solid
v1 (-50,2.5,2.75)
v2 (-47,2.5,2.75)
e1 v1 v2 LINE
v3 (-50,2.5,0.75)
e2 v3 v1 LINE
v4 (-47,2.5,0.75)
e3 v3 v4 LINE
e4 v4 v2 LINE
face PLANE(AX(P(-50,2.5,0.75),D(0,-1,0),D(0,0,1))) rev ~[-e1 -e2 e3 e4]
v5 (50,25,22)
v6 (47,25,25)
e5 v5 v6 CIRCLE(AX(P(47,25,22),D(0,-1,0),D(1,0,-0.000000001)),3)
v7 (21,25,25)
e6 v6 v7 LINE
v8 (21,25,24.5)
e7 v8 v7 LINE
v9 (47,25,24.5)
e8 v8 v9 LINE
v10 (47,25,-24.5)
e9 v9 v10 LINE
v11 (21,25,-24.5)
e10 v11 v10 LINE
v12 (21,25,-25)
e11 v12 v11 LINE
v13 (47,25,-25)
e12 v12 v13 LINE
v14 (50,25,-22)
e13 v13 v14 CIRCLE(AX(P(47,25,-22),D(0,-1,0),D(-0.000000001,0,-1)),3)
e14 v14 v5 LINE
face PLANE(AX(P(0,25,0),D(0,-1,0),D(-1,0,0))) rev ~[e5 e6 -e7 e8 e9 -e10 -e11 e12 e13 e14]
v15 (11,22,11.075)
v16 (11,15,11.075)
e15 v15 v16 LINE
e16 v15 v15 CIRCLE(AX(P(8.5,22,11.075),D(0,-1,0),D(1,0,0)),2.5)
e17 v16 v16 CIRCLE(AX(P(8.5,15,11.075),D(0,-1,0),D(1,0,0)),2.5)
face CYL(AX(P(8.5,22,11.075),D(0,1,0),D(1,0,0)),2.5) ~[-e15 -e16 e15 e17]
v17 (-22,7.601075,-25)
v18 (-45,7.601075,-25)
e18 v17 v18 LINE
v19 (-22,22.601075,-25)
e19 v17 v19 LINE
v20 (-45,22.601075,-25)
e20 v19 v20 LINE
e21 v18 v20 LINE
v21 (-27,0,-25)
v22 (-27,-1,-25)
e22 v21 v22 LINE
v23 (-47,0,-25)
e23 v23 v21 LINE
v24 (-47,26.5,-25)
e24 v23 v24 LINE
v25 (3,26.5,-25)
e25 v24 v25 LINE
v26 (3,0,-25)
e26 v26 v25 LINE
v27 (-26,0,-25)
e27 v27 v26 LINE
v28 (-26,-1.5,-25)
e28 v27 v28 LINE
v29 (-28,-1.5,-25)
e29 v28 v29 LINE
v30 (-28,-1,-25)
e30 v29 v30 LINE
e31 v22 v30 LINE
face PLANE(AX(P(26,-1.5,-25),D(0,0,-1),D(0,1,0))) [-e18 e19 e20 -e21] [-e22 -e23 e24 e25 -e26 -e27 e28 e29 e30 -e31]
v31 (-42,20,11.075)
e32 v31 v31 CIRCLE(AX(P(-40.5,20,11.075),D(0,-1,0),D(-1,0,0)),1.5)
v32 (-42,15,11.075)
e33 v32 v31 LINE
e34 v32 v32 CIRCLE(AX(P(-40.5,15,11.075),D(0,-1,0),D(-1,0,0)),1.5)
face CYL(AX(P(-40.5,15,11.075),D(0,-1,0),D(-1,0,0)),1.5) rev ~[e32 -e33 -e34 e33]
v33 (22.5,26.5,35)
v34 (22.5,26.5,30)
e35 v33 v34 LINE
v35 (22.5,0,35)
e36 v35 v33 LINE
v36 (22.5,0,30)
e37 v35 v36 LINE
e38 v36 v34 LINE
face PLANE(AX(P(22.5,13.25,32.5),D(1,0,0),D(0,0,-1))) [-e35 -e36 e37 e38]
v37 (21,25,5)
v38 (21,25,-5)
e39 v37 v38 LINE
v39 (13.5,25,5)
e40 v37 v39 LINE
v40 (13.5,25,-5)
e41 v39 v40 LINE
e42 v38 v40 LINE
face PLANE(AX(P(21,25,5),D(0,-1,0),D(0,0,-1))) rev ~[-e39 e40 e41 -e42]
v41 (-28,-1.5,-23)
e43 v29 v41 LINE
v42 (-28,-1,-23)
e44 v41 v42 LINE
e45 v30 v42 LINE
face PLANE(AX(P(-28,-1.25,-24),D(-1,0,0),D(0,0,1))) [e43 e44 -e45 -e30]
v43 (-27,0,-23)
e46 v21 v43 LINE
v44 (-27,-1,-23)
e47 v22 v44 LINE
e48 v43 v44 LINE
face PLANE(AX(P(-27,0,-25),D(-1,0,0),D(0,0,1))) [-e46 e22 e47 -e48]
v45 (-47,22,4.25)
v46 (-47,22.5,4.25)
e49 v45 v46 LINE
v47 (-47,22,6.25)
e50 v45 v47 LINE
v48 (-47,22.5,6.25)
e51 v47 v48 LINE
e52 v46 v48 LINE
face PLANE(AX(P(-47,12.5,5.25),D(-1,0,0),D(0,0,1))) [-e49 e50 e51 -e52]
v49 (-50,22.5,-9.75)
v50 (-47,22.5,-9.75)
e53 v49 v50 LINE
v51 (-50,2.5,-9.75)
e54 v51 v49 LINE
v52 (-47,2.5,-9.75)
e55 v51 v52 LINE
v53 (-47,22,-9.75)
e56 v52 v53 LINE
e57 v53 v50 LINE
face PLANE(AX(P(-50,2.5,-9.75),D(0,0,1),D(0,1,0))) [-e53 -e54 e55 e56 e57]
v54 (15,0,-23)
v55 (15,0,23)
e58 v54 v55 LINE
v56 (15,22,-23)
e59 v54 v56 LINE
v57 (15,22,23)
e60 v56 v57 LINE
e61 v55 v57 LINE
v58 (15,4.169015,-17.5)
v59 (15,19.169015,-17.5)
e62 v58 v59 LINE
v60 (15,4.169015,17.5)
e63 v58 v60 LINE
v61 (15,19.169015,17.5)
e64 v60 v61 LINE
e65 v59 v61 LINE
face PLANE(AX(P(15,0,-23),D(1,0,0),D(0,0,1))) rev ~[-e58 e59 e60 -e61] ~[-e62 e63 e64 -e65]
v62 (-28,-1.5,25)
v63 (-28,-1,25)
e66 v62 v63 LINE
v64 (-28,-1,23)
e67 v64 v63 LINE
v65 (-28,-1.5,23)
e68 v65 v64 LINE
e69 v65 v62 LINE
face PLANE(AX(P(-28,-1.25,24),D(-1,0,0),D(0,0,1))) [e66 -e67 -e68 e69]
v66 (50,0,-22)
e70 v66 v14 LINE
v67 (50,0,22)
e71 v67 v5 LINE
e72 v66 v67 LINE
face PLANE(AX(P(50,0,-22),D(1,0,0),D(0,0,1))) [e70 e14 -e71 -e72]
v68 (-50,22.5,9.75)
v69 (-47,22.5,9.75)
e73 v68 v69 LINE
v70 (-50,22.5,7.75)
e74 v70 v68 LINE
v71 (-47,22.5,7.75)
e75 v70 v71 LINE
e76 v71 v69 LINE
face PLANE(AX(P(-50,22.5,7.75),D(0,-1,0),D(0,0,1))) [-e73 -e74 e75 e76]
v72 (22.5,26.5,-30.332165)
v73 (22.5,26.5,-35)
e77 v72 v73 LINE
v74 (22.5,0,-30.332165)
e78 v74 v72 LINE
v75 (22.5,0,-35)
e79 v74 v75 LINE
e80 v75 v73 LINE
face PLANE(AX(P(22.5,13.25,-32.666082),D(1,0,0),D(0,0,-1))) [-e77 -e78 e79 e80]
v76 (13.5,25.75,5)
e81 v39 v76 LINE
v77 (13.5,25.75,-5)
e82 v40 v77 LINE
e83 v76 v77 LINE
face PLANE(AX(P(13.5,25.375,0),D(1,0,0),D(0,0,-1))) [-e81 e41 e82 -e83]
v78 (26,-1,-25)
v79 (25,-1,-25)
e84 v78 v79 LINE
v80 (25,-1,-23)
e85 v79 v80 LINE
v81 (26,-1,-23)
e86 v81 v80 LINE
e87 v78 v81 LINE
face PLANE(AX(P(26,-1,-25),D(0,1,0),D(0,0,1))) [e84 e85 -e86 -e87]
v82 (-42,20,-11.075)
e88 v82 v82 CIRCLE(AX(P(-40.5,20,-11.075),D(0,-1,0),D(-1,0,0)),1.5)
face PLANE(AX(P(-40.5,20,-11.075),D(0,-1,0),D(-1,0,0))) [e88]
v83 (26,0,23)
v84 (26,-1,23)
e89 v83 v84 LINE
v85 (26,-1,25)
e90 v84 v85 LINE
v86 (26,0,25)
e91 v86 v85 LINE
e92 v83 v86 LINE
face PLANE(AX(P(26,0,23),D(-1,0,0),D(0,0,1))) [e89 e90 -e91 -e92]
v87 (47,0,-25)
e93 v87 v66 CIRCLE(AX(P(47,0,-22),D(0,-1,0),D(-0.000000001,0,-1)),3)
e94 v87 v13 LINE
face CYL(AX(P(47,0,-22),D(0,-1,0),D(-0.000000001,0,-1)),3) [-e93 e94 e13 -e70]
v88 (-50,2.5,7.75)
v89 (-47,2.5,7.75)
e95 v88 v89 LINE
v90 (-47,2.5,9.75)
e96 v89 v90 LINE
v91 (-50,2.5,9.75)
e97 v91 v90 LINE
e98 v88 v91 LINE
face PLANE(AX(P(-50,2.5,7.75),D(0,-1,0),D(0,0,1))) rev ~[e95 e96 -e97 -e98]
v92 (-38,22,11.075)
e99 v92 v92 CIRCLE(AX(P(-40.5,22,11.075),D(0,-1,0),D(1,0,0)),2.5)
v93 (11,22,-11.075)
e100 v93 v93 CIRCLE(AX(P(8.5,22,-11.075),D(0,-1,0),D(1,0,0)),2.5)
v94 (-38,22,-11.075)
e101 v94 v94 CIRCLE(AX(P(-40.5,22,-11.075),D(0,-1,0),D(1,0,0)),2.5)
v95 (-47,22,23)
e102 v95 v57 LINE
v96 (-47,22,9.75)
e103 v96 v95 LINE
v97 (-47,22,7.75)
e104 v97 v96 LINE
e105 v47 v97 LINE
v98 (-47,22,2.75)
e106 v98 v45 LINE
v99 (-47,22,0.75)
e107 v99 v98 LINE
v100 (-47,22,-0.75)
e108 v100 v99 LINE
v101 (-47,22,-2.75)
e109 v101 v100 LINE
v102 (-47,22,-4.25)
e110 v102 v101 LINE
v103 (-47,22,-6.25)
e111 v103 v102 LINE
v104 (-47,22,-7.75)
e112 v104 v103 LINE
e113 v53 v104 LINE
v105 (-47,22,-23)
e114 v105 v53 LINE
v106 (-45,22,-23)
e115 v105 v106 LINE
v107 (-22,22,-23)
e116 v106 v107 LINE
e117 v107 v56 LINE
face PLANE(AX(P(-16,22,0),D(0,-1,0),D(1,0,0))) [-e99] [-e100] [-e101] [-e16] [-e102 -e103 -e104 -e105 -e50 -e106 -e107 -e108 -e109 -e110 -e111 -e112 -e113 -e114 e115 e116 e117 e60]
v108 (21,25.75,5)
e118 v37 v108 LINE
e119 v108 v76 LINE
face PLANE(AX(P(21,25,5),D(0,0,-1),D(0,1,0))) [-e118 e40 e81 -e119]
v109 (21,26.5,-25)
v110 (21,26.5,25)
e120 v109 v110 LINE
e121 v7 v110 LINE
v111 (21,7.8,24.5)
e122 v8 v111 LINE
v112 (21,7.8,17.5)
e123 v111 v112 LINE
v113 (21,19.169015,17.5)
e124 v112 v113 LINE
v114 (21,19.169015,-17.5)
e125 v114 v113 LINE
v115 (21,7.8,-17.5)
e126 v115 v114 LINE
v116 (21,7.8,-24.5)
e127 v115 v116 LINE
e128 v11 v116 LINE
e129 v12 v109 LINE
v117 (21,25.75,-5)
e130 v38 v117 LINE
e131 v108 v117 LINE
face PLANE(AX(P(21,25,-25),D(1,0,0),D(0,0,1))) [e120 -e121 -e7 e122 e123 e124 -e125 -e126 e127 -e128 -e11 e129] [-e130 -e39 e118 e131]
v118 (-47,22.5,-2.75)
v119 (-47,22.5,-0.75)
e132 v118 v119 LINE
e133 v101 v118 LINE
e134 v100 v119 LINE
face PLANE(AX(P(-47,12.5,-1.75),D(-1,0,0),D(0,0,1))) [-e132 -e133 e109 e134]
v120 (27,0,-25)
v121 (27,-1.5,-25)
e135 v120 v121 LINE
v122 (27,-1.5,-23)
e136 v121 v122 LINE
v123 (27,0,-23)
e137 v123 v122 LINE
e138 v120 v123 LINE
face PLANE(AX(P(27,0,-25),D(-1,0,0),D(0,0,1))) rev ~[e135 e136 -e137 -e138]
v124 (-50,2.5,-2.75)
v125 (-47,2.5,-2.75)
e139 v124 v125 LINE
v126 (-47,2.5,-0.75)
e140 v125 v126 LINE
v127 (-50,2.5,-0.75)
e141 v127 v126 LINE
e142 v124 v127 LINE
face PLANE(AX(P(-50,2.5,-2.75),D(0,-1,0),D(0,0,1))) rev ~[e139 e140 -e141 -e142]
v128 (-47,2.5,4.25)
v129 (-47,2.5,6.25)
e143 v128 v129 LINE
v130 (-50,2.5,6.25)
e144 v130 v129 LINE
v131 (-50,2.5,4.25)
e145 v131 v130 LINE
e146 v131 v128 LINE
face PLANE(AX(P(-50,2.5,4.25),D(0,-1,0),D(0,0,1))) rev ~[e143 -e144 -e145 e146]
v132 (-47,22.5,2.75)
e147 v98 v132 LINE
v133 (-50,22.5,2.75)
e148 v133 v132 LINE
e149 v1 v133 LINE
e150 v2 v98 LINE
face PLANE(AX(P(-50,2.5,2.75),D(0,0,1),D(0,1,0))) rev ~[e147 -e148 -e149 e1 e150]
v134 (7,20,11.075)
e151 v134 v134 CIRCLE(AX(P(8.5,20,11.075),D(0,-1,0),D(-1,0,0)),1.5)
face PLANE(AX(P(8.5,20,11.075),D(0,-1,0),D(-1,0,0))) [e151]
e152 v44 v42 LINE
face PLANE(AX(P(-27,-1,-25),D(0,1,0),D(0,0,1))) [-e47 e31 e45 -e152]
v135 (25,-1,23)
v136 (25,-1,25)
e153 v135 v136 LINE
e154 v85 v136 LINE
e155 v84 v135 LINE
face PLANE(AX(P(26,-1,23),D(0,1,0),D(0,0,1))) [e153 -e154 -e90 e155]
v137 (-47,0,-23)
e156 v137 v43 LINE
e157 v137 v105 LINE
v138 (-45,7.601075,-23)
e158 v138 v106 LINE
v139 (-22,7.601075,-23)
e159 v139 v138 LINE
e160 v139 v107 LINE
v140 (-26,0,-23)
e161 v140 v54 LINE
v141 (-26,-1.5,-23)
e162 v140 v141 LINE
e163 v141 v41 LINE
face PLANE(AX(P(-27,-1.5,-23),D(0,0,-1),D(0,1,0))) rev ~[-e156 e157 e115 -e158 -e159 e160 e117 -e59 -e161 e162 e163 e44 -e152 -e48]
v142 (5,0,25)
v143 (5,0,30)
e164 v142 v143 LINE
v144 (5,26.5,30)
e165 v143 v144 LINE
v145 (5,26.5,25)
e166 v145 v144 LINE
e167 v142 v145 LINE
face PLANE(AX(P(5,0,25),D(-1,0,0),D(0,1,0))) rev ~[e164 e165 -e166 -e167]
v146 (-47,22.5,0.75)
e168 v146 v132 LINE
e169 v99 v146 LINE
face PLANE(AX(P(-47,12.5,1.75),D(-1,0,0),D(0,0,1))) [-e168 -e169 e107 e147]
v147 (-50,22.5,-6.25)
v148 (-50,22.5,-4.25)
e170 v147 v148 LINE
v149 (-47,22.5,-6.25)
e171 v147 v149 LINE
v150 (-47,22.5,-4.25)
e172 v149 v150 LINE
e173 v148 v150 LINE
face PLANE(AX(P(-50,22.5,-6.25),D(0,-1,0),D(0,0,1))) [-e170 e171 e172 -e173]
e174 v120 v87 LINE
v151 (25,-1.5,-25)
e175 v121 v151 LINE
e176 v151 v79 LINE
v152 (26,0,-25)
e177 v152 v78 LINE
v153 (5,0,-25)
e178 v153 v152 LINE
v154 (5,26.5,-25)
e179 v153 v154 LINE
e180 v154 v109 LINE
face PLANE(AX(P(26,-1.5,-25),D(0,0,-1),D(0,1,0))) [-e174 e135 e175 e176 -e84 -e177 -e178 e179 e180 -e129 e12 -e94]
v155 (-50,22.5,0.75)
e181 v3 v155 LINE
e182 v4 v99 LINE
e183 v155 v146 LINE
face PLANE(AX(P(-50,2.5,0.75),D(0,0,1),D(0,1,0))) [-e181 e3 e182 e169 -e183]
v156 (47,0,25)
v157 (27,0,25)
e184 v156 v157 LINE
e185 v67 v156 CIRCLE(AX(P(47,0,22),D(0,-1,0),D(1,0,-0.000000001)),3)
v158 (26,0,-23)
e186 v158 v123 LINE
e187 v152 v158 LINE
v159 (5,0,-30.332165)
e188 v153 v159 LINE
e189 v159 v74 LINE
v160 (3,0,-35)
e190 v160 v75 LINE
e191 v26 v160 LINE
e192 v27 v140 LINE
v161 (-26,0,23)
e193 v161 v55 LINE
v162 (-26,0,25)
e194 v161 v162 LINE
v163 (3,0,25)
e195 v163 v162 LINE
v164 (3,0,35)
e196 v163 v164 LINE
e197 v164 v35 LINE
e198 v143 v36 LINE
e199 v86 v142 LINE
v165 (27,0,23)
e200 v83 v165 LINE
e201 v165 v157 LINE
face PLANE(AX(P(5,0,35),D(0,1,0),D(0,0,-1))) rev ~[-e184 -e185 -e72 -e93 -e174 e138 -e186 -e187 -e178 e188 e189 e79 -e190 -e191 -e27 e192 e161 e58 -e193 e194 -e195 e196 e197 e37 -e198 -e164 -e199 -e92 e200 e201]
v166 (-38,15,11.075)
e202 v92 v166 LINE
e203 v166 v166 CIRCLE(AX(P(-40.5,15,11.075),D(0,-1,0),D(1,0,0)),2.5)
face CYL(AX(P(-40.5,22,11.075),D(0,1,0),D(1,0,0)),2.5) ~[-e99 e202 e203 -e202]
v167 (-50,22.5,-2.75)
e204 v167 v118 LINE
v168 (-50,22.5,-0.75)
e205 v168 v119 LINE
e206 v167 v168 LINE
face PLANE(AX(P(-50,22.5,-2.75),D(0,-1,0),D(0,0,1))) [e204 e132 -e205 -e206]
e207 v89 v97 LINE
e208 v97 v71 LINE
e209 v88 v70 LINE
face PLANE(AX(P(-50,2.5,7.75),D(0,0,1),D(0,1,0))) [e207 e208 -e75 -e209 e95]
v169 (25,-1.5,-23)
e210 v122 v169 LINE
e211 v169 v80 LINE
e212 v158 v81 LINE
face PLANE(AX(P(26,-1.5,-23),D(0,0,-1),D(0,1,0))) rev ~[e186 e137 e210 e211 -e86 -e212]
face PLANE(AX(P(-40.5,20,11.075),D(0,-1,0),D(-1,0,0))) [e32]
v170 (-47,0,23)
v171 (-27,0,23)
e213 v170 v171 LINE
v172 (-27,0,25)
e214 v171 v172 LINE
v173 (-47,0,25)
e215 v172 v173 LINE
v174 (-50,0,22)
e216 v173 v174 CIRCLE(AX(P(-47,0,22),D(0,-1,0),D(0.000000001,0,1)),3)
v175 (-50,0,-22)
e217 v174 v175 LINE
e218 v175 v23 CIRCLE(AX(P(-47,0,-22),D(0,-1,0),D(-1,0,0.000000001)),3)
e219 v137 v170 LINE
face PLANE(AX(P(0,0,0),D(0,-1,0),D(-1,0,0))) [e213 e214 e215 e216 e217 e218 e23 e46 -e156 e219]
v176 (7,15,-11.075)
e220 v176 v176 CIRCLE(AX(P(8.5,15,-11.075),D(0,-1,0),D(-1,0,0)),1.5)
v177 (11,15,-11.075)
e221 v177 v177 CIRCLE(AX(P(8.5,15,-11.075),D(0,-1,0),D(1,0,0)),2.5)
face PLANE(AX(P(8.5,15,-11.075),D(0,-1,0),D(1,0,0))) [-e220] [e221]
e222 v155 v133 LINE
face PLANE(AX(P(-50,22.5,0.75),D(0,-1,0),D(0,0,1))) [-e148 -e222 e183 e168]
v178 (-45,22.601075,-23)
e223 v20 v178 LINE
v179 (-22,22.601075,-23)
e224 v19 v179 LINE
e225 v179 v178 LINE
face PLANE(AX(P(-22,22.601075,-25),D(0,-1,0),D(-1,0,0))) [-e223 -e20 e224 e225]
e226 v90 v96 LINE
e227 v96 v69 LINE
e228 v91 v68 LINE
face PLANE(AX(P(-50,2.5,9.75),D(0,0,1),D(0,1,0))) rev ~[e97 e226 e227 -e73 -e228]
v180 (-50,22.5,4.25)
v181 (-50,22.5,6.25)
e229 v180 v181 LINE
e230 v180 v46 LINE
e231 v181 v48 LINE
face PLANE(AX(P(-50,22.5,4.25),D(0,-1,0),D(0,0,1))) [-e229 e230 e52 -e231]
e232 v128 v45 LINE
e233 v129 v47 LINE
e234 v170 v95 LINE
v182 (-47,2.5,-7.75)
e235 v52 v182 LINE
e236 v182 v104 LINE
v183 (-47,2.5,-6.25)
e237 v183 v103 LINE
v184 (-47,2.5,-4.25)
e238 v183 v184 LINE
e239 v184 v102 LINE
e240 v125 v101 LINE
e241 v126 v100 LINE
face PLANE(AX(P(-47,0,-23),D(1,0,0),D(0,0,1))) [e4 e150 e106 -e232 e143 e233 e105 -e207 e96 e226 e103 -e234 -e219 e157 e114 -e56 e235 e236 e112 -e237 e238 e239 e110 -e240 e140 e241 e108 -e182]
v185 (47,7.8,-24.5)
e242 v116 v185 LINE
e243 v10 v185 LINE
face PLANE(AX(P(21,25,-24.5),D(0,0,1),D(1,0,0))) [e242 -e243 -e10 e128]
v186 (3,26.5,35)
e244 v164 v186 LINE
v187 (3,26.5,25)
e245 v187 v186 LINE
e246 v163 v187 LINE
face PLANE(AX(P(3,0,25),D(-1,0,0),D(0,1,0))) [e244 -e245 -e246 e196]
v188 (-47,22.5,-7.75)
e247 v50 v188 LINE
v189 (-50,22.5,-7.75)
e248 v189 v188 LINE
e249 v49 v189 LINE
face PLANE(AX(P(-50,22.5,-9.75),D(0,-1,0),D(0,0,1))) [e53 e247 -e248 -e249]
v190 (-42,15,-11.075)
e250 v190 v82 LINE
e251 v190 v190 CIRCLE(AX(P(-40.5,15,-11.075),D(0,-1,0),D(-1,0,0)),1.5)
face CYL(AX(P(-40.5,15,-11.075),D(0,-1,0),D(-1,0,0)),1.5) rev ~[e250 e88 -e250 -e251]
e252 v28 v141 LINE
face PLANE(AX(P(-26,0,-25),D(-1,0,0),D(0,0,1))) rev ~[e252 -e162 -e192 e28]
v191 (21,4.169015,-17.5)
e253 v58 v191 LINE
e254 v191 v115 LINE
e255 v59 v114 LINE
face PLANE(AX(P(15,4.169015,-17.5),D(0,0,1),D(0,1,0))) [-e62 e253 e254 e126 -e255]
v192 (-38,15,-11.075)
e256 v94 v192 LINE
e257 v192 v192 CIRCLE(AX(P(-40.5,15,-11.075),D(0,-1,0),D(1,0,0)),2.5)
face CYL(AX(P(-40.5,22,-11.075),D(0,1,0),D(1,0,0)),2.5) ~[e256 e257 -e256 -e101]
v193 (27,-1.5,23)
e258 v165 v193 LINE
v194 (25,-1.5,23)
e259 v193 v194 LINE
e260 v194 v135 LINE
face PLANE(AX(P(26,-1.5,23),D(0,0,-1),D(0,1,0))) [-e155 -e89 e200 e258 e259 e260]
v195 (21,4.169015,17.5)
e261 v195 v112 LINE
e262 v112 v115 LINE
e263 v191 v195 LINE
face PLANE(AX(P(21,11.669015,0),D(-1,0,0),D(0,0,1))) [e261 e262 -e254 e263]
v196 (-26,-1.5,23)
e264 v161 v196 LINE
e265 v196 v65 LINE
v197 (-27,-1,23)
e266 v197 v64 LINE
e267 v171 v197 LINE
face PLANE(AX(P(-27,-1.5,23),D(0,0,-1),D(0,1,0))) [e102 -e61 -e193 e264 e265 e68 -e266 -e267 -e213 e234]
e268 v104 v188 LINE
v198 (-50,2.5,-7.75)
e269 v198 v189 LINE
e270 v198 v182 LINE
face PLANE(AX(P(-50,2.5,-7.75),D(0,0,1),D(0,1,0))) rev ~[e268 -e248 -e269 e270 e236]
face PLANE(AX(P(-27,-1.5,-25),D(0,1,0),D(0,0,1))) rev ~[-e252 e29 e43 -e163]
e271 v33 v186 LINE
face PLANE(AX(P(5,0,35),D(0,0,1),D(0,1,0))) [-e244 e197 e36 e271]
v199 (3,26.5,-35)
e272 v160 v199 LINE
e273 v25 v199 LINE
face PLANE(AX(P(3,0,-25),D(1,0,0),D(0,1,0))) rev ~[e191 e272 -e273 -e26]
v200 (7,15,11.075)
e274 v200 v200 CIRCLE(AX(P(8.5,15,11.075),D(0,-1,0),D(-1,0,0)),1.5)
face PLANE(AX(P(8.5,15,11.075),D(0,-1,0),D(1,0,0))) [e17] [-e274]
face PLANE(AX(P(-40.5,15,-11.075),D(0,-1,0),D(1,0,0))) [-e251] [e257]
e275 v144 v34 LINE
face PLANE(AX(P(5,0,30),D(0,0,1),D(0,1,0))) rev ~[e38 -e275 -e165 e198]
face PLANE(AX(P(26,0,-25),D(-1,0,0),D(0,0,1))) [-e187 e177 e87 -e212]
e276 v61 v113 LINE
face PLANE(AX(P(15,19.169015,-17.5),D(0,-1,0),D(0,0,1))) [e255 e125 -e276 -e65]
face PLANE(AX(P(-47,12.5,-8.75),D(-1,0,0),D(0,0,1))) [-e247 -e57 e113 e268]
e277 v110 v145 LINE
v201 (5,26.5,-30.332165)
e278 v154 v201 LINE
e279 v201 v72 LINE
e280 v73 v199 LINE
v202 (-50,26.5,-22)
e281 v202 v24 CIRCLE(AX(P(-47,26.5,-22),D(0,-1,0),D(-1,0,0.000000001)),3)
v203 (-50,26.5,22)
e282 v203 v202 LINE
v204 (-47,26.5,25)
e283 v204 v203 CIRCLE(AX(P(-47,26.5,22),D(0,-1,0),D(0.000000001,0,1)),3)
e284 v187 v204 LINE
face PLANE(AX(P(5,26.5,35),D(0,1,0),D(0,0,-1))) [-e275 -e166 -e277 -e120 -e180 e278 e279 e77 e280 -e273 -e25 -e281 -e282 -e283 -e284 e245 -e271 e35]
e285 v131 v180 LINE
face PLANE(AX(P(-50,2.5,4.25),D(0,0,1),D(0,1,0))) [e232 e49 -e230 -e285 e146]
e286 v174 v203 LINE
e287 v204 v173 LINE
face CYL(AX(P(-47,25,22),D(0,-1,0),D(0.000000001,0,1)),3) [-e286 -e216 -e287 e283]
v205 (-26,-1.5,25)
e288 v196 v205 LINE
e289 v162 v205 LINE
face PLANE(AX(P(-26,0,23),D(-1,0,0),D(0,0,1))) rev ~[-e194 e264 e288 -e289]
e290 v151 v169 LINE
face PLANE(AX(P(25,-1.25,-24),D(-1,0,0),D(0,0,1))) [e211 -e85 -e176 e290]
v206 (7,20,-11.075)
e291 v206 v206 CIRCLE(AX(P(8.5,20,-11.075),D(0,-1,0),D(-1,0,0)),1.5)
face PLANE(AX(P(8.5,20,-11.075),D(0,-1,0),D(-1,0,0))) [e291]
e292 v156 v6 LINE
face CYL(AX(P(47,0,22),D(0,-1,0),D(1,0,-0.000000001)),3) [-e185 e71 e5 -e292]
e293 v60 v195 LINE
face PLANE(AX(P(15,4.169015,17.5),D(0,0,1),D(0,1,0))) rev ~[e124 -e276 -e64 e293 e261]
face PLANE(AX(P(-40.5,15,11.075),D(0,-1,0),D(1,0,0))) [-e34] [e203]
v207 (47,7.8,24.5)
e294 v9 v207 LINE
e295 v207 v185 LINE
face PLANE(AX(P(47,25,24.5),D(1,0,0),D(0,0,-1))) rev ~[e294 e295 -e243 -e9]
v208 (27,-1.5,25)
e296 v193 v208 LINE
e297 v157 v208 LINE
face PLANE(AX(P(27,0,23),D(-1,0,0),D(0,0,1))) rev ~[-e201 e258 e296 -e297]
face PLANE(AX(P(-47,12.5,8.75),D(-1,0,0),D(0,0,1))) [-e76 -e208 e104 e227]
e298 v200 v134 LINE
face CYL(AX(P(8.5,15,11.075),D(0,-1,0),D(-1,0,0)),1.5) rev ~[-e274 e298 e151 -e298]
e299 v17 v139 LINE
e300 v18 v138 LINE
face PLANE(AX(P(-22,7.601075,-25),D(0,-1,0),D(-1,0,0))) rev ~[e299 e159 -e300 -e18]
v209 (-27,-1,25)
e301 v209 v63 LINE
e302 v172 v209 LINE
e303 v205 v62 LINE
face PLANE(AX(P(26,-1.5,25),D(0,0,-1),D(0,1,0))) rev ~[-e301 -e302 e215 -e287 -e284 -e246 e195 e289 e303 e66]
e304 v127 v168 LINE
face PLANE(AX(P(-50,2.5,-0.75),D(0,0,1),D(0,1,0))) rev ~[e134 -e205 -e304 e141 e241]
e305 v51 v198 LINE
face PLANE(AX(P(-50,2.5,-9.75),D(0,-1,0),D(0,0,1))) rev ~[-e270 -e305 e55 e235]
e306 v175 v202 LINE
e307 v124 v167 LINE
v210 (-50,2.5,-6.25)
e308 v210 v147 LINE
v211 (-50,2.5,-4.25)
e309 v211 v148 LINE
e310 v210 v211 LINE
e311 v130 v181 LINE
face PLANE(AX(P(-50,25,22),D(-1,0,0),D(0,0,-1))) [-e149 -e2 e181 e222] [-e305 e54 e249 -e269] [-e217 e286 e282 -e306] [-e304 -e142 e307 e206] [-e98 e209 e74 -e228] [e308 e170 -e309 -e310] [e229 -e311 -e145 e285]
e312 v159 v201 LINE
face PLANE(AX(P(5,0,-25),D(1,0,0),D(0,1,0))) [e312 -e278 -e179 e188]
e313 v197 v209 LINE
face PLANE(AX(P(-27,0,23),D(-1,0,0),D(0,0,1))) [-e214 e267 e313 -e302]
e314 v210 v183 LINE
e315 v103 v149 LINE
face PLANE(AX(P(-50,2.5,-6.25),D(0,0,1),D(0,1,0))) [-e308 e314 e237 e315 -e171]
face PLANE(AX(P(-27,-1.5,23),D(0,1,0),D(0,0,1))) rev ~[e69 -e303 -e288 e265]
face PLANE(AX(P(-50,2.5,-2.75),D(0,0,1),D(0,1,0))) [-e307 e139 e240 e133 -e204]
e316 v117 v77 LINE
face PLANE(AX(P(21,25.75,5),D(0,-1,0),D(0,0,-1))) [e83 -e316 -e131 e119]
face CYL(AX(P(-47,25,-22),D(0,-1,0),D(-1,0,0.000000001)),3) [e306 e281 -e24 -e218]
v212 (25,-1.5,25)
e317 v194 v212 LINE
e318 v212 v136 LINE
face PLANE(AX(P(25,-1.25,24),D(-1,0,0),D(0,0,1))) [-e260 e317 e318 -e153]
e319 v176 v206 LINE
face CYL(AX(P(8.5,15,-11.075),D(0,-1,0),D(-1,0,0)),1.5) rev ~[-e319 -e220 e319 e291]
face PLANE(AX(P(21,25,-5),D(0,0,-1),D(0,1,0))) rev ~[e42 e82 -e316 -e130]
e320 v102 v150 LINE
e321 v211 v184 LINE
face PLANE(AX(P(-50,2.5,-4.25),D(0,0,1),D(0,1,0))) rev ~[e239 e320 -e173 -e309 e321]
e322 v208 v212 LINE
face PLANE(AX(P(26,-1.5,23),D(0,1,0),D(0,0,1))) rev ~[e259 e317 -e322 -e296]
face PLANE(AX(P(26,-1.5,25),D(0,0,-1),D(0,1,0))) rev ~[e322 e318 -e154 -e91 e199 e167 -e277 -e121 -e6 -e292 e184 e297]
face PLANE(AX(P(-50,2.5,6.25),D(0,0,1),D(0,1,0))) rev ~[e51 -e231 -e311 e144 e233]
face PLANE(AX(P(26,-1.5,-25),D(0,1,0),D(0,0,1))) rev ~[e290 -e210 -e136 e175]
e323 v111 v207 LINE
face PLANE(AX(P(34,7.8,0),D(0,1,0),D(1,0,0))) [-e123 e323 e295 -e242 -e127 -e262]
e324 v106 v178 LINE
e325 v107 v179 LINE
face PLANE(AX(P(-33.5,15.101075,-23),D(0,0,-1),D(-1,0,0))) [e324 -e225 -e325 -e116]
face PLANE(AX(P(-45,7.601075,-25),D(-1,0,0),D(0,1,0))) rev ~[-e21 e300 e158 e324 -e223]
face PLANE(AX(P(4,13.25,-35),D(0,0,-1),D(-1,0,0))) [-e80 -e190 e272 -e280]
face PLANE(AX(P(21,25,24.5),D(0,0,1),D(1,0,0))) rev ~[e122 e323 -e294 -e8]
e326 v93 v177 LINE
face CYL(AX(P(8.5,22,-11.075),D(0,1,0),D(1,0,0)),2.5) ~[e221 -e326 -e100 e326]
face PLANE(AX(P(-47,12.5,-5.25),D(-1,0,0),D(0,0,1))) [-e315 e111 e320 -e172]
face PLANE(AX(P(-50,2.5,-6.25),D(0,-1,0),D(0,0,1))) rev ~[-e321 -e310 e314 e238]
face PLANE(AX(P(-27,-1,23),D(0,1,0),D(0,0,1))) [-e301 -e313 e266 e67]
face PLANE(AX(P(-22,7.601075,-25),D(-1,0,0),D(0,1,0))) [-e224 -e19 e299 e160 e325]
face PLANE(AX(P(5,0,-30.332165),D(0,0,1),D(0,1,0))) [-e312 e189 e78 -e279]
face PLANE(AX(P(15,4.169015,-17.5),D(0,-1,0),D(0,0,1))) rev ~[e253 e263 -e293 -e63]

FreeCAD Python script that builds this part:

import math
import FreeCAD as App
import Part
import Sketcher

V = App.Vector
Q = App.Units.Quantity


def add_polygon(sketch, points):
    """Adds a closed chain of lines whose ends are joined by coincident constraints."""
    first, n = sketch.GeometryCount, len(points)
    for a, b in zip(points, points[1:] + points[:1]):
        sketch.addGeometry(Part.LineSegment(App.Vector(*a, 0), App.Vector(*b, 0)), False)
    for i in range(n):
        sketch.addConstraint(Sketcher.Constraint("Coincident", first + i, 2, first + (i + 1) % n, 1))

doc = App.newDocument("Part")
body = doc.addObject("PartDesign::Body", "Body")

# Sketch on XZ plane
sketch1 = doc.addObject("Sketcher::SketchObject", "Sketch")
body.addObject(sketch1)
sketch1.AttachmentSupport = (doc.XZ_Plane, [""])
sketch1.MapMode = "FlatFace"
sketch1.addGeometry([
    Part.LineSegment(V(-47, 25, 0), V(47, 25, 0)),  # 0
    Part.ArcOfCircle(Part.Circle(V(47, 22, 0), V(0, 0, 1), 3), math.radians(0), math.radians(90)),  # 1
    Part.LineSegment(V(50, 22, 0), V(50, -22, 0)),  # 2
    Part.ArcOfCircle(Part.Circle(V(47, -22, 0), V(0, 0, 1), 3), math.radians(-90), math.radians(0)),  # 3
    Part.LineSegment(V(47, -25, 0), V(-47, -25, 0)),  # 4
    Part.ArcOfCircle(Part.Circle(V(-47, -22, 0), V(0, 0, 1), 3), math.radians(180), math.radians(270)),  # 5
    Part.LineSegment(V(-50, -22, 0), V(-50, 22, 0)),  # 6
    Part.ArcOfCircle(Part.Circle(V(-47, 22, 0), V(0, 0, 1), 3), math.radians(90), math.radians(180)),  # 7
], False)
sketch1.addConstraint([
    Sketcher.Constraint("Tangent", 0, 2, 1, 2),
    Sketcher.Constraint("Tangent", 1, 1, 2, 1),
    Sketcher.Constraint("Tangent", 2, 2, 3, 2),
    Sketcher.Constraint("Tangent", 3, 1, 4, 1),
    Sketcher.Constraint("Tangent", 4, 2, 5, 2),
    Sketcher.Constraint("Tangent", 5, 1, 6, 1),
    Sketcher.Constraint("Tangent", 6, 2, 7, 2),
    Sketcher.Constraint("Tangent", 7, 1, 0, 1),
    Sketcher.Constraint("Horizontal", 0),
    Sketcher.Constraint("Vertical", 2),
    Sketcher.Constraint("Horizontal", 4),
    Sketcher.Constraint("Vertical", 6),
    Sketcher.Constraint("Equal", 1, 3),
    Sketcher.Constraint("Equal", 3, 5),
    Sketcher.Constraint("Equal", 5, 7),
    Sketcher.Constraint("Symmetric", 1, 3, 5, 3, -1, 1),
    Sketcher.Constraint("Radius", 1, Q("3 mm")),
    Sketcher.Constraint("DistanceX", 0, 1, 0, 2, Q("94 mm")),
    Sketcher.Constraint("DistanceY", 2, 2, 2, 1, Q("44 mm")),
])
pad1 = doc.addObject("PartDesign::Pad", "Pad")
body.addObject(pad1)
pad1.Profile = sketch1
pad1.Length = 25
pad1.Reversed = True

# Sketch on XZ plane
sketch2 = doc.addObject("Sketcher::SketchObject", "Sketch001")
body.addObject(sketch2)
sketch2.AttachmentSupport = (doc.XZ_Plane, [""])
sketch2.MapMode = "FlatFace"
sketch2.AttachmentOffset = App.Placement(V(0, 0, -25), App.Rotation())
add_polygon(sketch2, [(21, -24.5), (21, 24.5), (47, 24.5), (47, -24.5)])  # lines 0-3
sketch2.addConstraint([
    Sketcher.Constraint("Vertical", 0),
    Sketcher.Constraint("Horizontal", 1),
    Sketcher.Constraint("Vertical", 2),
    Sketcher.Constraint("Horizontal", 3),
    Sketcher.Constraint("DistanceX", 1, 1, 1, 2, Q("26 mm")),
    Sketcher.Constraint("DistanceY", 0, 1, 0, 2, Q("49 mm")),
    Sketcher.Constraint("DistanceX", -1, 1, 0, 2, Q("21 mm")),
    Sketcher.Constraint("DistanceY", -1, 1, 0, 2, Q("24.5 mm")),
])
pocket1 = doc.addObject("PartDesign::Pocket", "Pocket")
body.addObject(pocket1)
pocket1.Profile = sketch2
pocket1.Length = 17.2
pocket1.Reversed = True

# Sketch on XZ plane
sketch3 = doc.addObject("Sketcher::SketchObject", "Sketch002")
body.addObject(sketch3)
sketch3.AttachmentSupport = (doc.XZ_Plane, [""])
sketch3.MapMode = "FlatFace"
add_polygon(sketch3, [(-47, 23), (-47, -23), (15, -23), (15, 23)])  # lines 0-3
sketch3.addConstraint([
    Sketcher.Constraint("Vertical", 0),
    Sketcher.Constraint("Horizontal", 1),
    Sketcher.Constraint("Vertical", 2),
    Sketcher.Constraint("Horizontal", 3),
    Sketcher.Constraint("DistanceX", 1, 1, 1, 2, Q("62 mm")),
    Sketcher.Constraint("DistanceY", 0, 2, 0, 1, Q("46 mm")),
    Sketcher.Constraint("DistanceX", 0, 2, -1, 1, Q("47 mm")),
    Sketcher.Constraint("DistanceY", 0, 2, -1, 1, Q("23 mm")),
])
pocket2 = doc.addObject("PartDesign::Pocket", "Pocket001")
body.addObject(pocket2)
pocket2.Profile = sketch3
pocket2.Length = 22

# Sketch on YZ plane
sketch4 = doc.addObject("Sketcher::SketchObject", "Sketch003")
body.addObject(sketch4)
sketch4.AttachmentSupport = (doc.YZ_Plane, [""])
sketch4.MapMode = "FlatFace"
sketch4.AttachmentOffset = App.Placement(V(0, 0, -50), App.Rotation())
add_polygon(sketch4, [(22.5, -9.75), (2.5, -9.75), (2.5, -7.75), (22.5, -7.75)])  # lines 0-3
add_polygon(sketch4, [(22.5, -6.25), (2.5, -6.25), (2.5, -4.25), (22.5, -4.25)])  # lines 4-7
add_polygon(sketch4, [(22.5, -2.75), (2.5, -2.75), (2.5, -0.75), (22.5, -0.75)])  # lines 8-11
add_polygon(sketch4, [(22.5, 0.75), (2.5, 0.75), (2.5, 2.75), (22.5, 2.75)])  # lines 12-15
add_polygon(sketch4, [(22.5, 4.25), (2.5, 4.25), (2.5, 6.25), (22.5, 6.25)])  # lines 16-19
add_polygon(sketch4, [(22.5, 7.75), (2.5, 7.75), (2.5, 9.75), (22.5, 9.75)])  # lines 20-23
sketch4.addConstraint([
    Sketcher.Constraint("Horizontal", 0),
    Sketcher.Constraint("Vertical", 1),
    Sketcher.Constraint("Horizontal", 2),
    Sketcher.Constraint("Vertical", 3),
    Sketcher.Constraint("Horizontal", 4),
    Sketcher.Constraint("Vertical", 5),
    Sketcher.Constraint("Horizontal", 6),
    Sketcher.Constraint("Vertical", 7),
    Sketcher.Constraint("Horizontal", 8),
    Sketcher.Constraint("Vertical", 9),
    Sketcher.Constraint("Horizontal", 10),
    Sketcher.Constraint("Vertical", 11),
    Sketcher.Constraint("Horizontal", 12),
    Sketcher.Constraint("Vertical", 13),
    Sketcher.Constraint("Horizontal", 14),
    Sketcher.Constraint("Vertical", 15),
    Sketcher.Constraint("Horizontal", 16),
    Sketcher.Constraint("Vertical", 17),
    Sketcher.Constraint("Horizontal", 18),
    Sketcher.Constraint("Vertical", 19),
    Sketcher.Constraint("Horizontal", 20),
    Sketcher.Constraint("Vertical", 21),
    Sketcher.Constraint("Horizontal", 22),
    Sketcher.Constraint("Vertical", 23),
    Sketcher.Constraint("Symmetric", 9, 2, 12, 2, -1),
    Sketcher.Constraint("Symmetric", 11, 2, 14, 2, -1),
    Sketcher.Constraint("Symmetric", 5, 2, 16, 2, -1),
    Sketcher.Constraint("Symmetric", 7, 2, 18, 2, -1),
    Sketcher.Constraint("Symmetric", 1, 2, 20, 2, -1),
    Sketcher.Constraint("Symmetric", 3, 2, 22, 2, -1),
    Sketcher.Constraint("Vertical", 1, 2, 4, 2),
    Sketcher.Constraint("Vertical", 3, 2, 6, 2),
    Sketcher.Constraint("Vertical", 5, 2, 8, 2),
    Sketcher.Constraint("Vertical", 7, 2, 10, 2),
    Sketcher.Constraint("Equal", 3, 5),
    Sketcher.Constraint("Equal", 7, 9),
    Sketcher.Constraint("DistanceX", 0, 2, 0, 1, Q("20 mm")),
    Sketcher.Constraint("DistanceY", 1, 1, 1, 2, Q("2 mm")),
    Sketcher.Constraint("DistanceY", 1, 2, 8, 2, Q("5 mm")),
    Sketcher.Constraint("DistanceY", 5, 2, 12, 2, Q("5 mm")),
    Sketcher.Constraint("DistanceX", -1, 1, 0, 2, Q("2.5 mm")),
    Sketcher.Constraint("DistanceY", 1, 2, 4, 2, Q("1.5 mm")),
])
pocket3 = doc.addObject("PartDesign::Pocket", "Pocket002")
body.addObject(pocket3)
pocket3.Profile = sketch4
pocket3.Length = 3
pocket3.Reversed = True

# Sketch on XY plane
sketch5 = doc.addObject("Sketcher::SketchObject", "Sketch004")
body.addObject(sketch5)
sketch5.AttachmentSupport = (doc.XY_Plane, [""])
sketch5.MapMode = "FlatFace"
sketch5.AttachmentOffset = App.Placement(V(0, 0, -25), App.Rotation())
add_polygon(sketch5, [(-22, 22.601075), (-22, 7.601075), (-45, 7.601075), (-45, 22.601075)])  # lines 0-3
sketch5.addConstraint([
    Sketcher.Constraint("Vertical", 0),
    Sketcher.Constraint("Horizontal", 1),
    Sketcher.Constraint("Vertical", 2),
    Sketcher.Constraint("Horizontal", 3),
    Sketcher.Constraint("DistanceX", 1, 2, 1, 1, Q("23 mm")),
    Sketcher.Constraint("DistanceY", 0, 2, 0, 1, Q("15 mm")),
    Sketcher.Constraint("DistanceX", 0, 2, -1, 1, Q("22 mm")),
    Sketcher.Constraint("DistanceY", -1, 1, 0, 2, Q("7.601075 mm")),
])
pocket4 = doc.addObject("PartDesign::Pocket", "Pocket003")
body.addObject(pocket4)
pocket4.Profile = sketch5
pocket4.Length = 2
pocket4.Reversed = True

# Sketch on YZ plane
sketch6 = doc.addObject("Sketcher::SketchObject", "Sketch005")
body.addObject(sketch6)
sketch6.AttachmentSupport = (doc.YZ_Plane, [""])
sketch6.MapMode = "FlatFace"
sketch6.AttachmentOffset = App.Placement(V(0, 0, 15), App.Rotation())
add_polygon(sketch6, [(19.169015, -17.5), (4.169015, -17.5), (4.169015, 17.5), (19.169015, 17.5)])  # lines 0-3
sketch6.addConstraint([
    Sketcher.Constraint("Horizontal", 0),
    Sketcher.Constraint("Vertical", 1),
    Sketcher.Constraint("Horizontal", 2),
    Sketcher.Constraint("Vertical", 3),
    Sketcher.Constraint("DistanceX", 0, 2, 0, 1, Q("15 mm")),
    Sketcher.Constraint("DistanceY", 1, 1, 1, 2, Q("35 mm")),
    Sketcher.Constraint("DistanceY", 0, 2, -1, 1, Q("17.5 mm")),
    Sketcher.Constraint("DistanceX", -1, 1, 0, 2, Q("4.169015 mm")),
])
pocket5 = doc.addObject("PartDesign::Pocket", "Pocket004")
body.addObject(pocket5)
pocket5.Profile = sketch6
pocket5.Length = 6
pocket5.Reversed = True

# Sketch on XZ plane
sketch7 = doc.addObject("Sketcher::SketchObject", "Sketch006")
body.addObject(sketch7)
sketch7.AttachmentSupport = (doc.XZ_Plane, [""])
sketch7.MapMode = "FlatFace"
sketch7.AttachmentOffset = App.Placement(V(0, 0, -25), App.Rotation())
sketch7.addGeometry([
    Part.LineSegment(V(21, -25, 0), V(-47, -25, 0)),  # 0
    Part.ArcOfCircle(Part.Circle(V(-47, -22, 0), V(0, 0, 1), 3), math.radians(180), math.radians(270)),  # 1
    Part.LineSegment(V(-50, -22, 0), V(-50, 22, 0)),  # 2
    Part.ArcOfCircle(Part.Circle(V(-47, 22, 0), V(0, 0, 1), 3), math.radians(90), math.radians(180)),  # 3
    Part.LineSegment(V(-47, 25, 0), V(21, 25, 0)),  # 4
    Part.LineSegment(V(21, 25, 0), V(21, -25, 0)),  # 5
], False)
sketch7.addConstraint([
    Sketcher.Constraint("Tangent", 0, 2, 1, 2),
    Sketcher.Constraint("Tangent", 1, 1, 2, 1),
    Sketcher.Constraint("Tangent", 2, 2, 3, 2),
    Sketcher.Constraint("Tangent", 3, 1, 4, 1),
    Sketcher.Constraint("Coincident", 4, 2, 5, 1),
    Sketcher.Constraint("Coincident", 5, 2, 0, 1),
    Sketcher.Constraint("Horizontal", 0),
    Sketcher.Constraint("Vertical", 2),
    Sketcher.Constraint("Horizontal", 4),
    Sketcher.Constraint("Vertical", 5),
    Sketcher.Constraint("Equal", 1, 3),
    Sketcher.Constraint("Radius", 1, Q("3 mm")),
    Sketcher.Constraint("DistanceX", 0, 2, 0, 1, Q("68 mm")),
    Sketcher.Constraint("DistanceY", 2, 1, 2, 2, Q("44 mm")),
    Sketcher.Constraint("DistanceX", 1, 3, -1, 1, Q("47 mm")),
    Sketcher.Constraint("DistanceY", 1, 3, -1, 1, Q("22 mm")),
])
pad2 = doc.addObject("PartDesign::Pad", "Pad001")
body.addObject(pad2)
pad2.Profile = sketch7
pad2.Length = 1.5
pad2.Reversed = True

# Sketch on YZ plane
sketch8 = doc.addObject("Sketcher::SketchObject", "Sketch007")
body.addObject(sketch8)
sketch8.AttachmentSupport = (doc.YZ_Plane, [""])
sketch8.MapMode = "FlatFace"
sketch8.AttachmentOffset = App.Placement(V(0, 0, 21), App.Rotation())
add_polygon(sketch8, [(25.75, 5), (25, 5), (25, -5), (25.75, -5)])  # lines 0-3
sketch8.addConstraint([
    Sketcher.Constraint("Horizontal", 0),
    Sketcher.Constraint("Vertical", 1),
    Sketcher.Constraint("Horizontal", 2),
    Sketcher.Constraint("Vertical", 3),
    Sketcher.Constraint("DistanceY", 1, 2, 1, 1, Q("10 mm")),
    Sketcher.Constraint("DistanceX", -1, 1, 0, 2, Q("25 mm")),
    Sketcher.Constraint("DistanceY", -1, 1, 0, 2, Q("5 mm")),
    Sketcher.Constraint("DistanceX", 0, 2, 0, 1, Q("0.75 mm")),
])
pocket6 = doc.addObject("PartDesign::Pocket", "Pocket005")
body.addObject(pocket6)
pocket6.Profile = sketch8
pocket6.Length = 7.5

# Sketch on XZ plane
sketch9 = doc.addObject("Sketcher::SketchObject", "Sketch008")
body.addObject(sketch9)
sketch9.AttachmentSupport = (doc.XZ_Plane, [""])
sketch9.MapMode = "FlatFace"
add_polygon(sketch9, [(-27, 25), (-27, 23), (-26, 23), (-26, 25)])  # lines 0-3
sketch9.addConstraint([
    Sketcher.Constraint("Vertical", 0),
    Sketcher.Constraint("Horizontal", 1),
    Sketcher.Constraint("Vertical", 2),
    Sketcher.Constraint("Horizontal", 3),
    Sketcher.Constraint("DistanceX", 1, 1, 1, 2, Q("1 mm")),
    Sketcher.Constraint("DistanceY", 0, 2, 0, 1, Q("2 mm")),
    Sketcher.Constraint("DistanceX", 0, 2, -1, 1, Q("27 mm")),
    Sketcher.Constraint("DistanceY", -1, 1, 0, 2, Q("23 mm")),
])
pad3 = doc.addObject("PartDesign::Pad", "Pad002")
body.addObject(pad3)
pad3.Profile = sketch9
pad3.Length = 1.5

# Sketch on XZ plane
sketch10 = doc.addObject("Sketcher::SketchObject", "Sketch009")
body.addObject(sketch10)
sketch10.AttachmentSupport = (doc.XZ_Plane, [""])
sketch10.MapMode = "FlatFace"
add_polygon(sketch10, [(-27, -23), (-27, -25), (-26, -25), (-26, -23)])  # lines 0-3
add_polygon(sketch10, [(26, 25), (26, 23), (27, 23), (27, 25)])  # lines 4-7
add_polygon(sketch10, [(26, -23), (26, -25), (27, -25), (27, -23)])  # lines 8-11
sketch10.addConstraint([
    Sketcher.Constraint("Vertical", 0),
    Sketcher.Constraint("Horizontal", 1),
    Sketcher.Constraint("Vertical", 2),
    Sketcher.Constraint("Horizontal", 3),
    Sketcher.Constraint("Vertical", 4),
    Sketcher.Constraint("Horizontal", 5),
    Sketcher.Constraint("Vertical", 6),
    Sketcher.Constraint("Horizontal", 7),
    Sketcher.Constraint("Vertical", 8),
    Sketcher.Constraint("Horizontal", 9),
    Sketcher.Constraint("Vertical", 10),
    Sketcher.Constraint("Horizontal", 11),
    Sketcher.Constraint("Symmetric", 2, 2, 4, 2, -1, 1),
    Sketcher.Constraint("Symmetric", 0, 2, 6, 2, -1, 1),
    Sketcher.Constraint("Symmetric", 1, 2, 8, 2, -2),
    Sketcher.Constraint("Symmetric", 3, 2, 10, 2, -2),
    Sketcher.Constraint("DistanceX", 1, 1, 1, 2, Q("1 mm")),
    Sketcher.Constraint("DistanceY", 0, 2, 0, 1, Q("2 mm")),
    Sketcher.Constraint("DistanceX", 0, 2, -1, 1, Q("27 mm")),
    Sketcher.Constraint("DistanceY", 0, 2, -1, 1, Q("25 mm")),
])
pad4 = doc.addObject("PartDesign::Pad", "Pad003")
body.addObject(pad4)
pad4.Profile = sketch10
pad4.Length = 1.5

# Sketch on YZ plane
sketch11 = doc.addObject("Sketcher::SketchObject", "Sketch010")
body.addObject(sketch11)
sketch11.AttachmentSupport = (doc.YZ_Plane, [""])
sketch11.MapMode = "FlatFace"
sketch11.AttachmentOffset = App.Placement(V(0, 0, -27), App.Rotation())
add_polygon(sketch11, [(-1, 23), (-1.5, 23), (-1.5, 25), (-1, 25)])  # lines 0-3
sketch11.addConstraint([
    Sketcher.Constraint("Horizontal", 0),
    Sketcher.Constraint("Vertical", 1),
    Sketcher.Constraint("Horizontal", 2),
    Sketcher.Constraint("Vertical", 3),
    Sketcher.Constraint("DistanceY", 1, 1, 1, 2, Q("2 mm")),
    Sketcher.Constraint("DistanceX", 0, 2, 0, 1, Q("0.5 mm")),
    Sketcher.Constraint("DistanceY", -1, 1, 0, 2, Q("23 mm")),
    Sketcher.Constraint("DistanceX", 2, 2, -1, 1, Q("1 mm")),
])
pad5 = doc.addObject("PartDesign::Pad", "Pad004")
body.addObject(pad5)
pad5.Profile = sketch11
pad5.Length = 1
pad5.Reversed = True

# Sketch on YZ plane
sketch12 = doc.addObject("Sketcher::SketchObject", "Sketch011")
body.addObject(sketch12)
sketch12.AttachmentSupport = (doc.YZ_Plane, [""])
sketch12.MapMode = "FlatFace"
sketch12.AttachmentOffset = App.Placement(V(0, 0, -27), App.Rotation())
add_polygon(sketch12, [(-1, -25), (-1.5, -25), (-1.5, -23), (-1, -23)])  # lines 0-3
sketch12.addConstraint([
    Sketcher.Constraint("Horizontal", 0),
    Sketcher.Constraint("Vertical", 1),
    Sketcher.Constraint("Horizontal", 2),
    Sketcher.Constraint("Vertical", 3),
    Sketcher.Constraint("DistanceY", 1, 1, 1, 2, Q("2 mm")),
    Sketcher.Constraint("DistanceX", 0, 2, 0, 1, Q("0.5 mm")),
    Sketcher.Constraint("DistanceY", 0, 2, -1, 1, Q("25 mm")),
    Sketcher.Constraint("DistanceX", 2, 2, -1, 1, Q("1 mm")),
])
pad6 = doc.addObject("PartDesign::Pad", "Pad005")
body.addObject(pad6)
pad6.Profile = sketch12
pad6.Length = 1
pad6.Reversed = True

# Sketch on YZ plane
sketch13 = doc.addObject("Sketcher::SketchObject", "Sketch012")
body.addObject(sketch13)
sketch13.AttachmentSupport = (doc.YZ_Plane, [""])
sketch13.MapMode = "FlatFace"
sketch13.AttachmentOffset = App.Placement(V(0, 0, 26), App.Rotation())
add_polygon(sketch13, [(-1, -25), (-1.5, -25), (-1.5, -23), (-1, -23)])  # lines 0-3
sketch13.addConstraint([
    Sketcher.Constraint("Horizontal", 0),
    Sketcher.Constraint("Vertical", 1),
    Sketcher.Constraint("Horizontal", 2),
    Sketcher.Constraint("Vertical", 3),
    Sketcher.Constraint("DistanceY", 1, 1, 1, 2, Q("2 mm")),
    Sketcher.Constraint("DistanceX", 0, 2, 0, 1, Q("0.5 mm")),
    Sketcher.Constraint("DistanceY", 0, 2, -1, 1, Q("25 mm")),
    Sketcher.Constraint("DistanceX", 2, 2, -1, 1, Q("1 mm")),
])
pad7 = doc.addObject("PartDesign::Pad", "Pad006")
body.addObject(pad7)
pad7.Profile = sketch13
pad7.Length = 1
pad7.Reversed = True

# Sketch on YZ plane
sketch14 = doc.addObject("Sketcher::SketchObject", "Sketch013")
body.addObject(sketch14)
sketch14.AttachmentSupport = (doc.YZ_Plane, [""])
sketch14.MapMode = "FlatFace"
sketch14.AttachmentOffset = App.Placement(V(0, 0, 26), App.Rotation())
add_polygon(sketch14, [(-1, 23), (-1.5, 23), (-1.5, 25), (-1, 25)])  # lines 0-3
sketch14.addConstraint([
    Sketcher.Constraint("Horizontal", 0),
    Sketcher.Constraint("Vertical", 1),
    Sketcher.Constraint("Horizontal", 2),
    Sketcher.Constraint("Vertical", 3),
    Sketcher.Constraint("DistanceY", 1, 1, 1, 2, Q("2 mm")),
    Sketcher.Constraint("DistanceX", 0, 2, 0, 1, Q("0.5 mm")),
    Sketcher.Constraint("DistanceY", -1, 1, 0, 2, Q("23 mm")),
    Sketcher.Constraint("DistanceX", 2, 2, -1, 1, Q("1 mm")),
])
pad8 = doc.addObject("PartDesign::Pad", "Pad007")
body.addObject(pad8)
pad8.Profile = sketch14
pad8.Length = 1
pad8.Reversed = True

# Sketch on XY plane
sketch15 = doc.addObject("Sketcher::SketchObject", "Sketch014")
body.addObject(sketch15)
sketch15.AttachmentSupport = (doc.XY_Plane, [""])
sketch15.MapMode = "FlatFace"
sketch15.AttachmentOffset = App.Placement(V(0, 0, 25), App.Rotation())
add_polygon(sketch15, [(3, 26.5), (3, 0), (5, 0), (5, 26.5)])  # lines 0-3
sketch15.addConstraint([
    Sketcher.Constraint("Vertical", 0),
    Sketcher.Constraint("Horizontal", 1),
    Sketcher.Constraint("Vertical", 2),
    Sketcher.Constraint("Horizontal", 3),
    Sketcher.Constraint("PointOnObject", 0, 2, -1),
    Sketcher.Constraint("DistanceX", 1, 1, 1, 2, Q("2 mm")),
    Sketcher.Constraint("DistanceY", 0, 2, 0, 1, Q("26.5 mm")),
    Sketcher.Constraint("DistanceX", -1, 1, 0, 2, Q("3 mm")),
])
pad9 = doc.addObject("PartDesign::Pad", "Pad008")
body.addObject(pad9)
pad9.Profile = sketch15
pad9.Length = 10

# Sketch on XY plane
sketch16 = doc.addObject("Sketcher::SketchObject", "Sketch015")
body.addObject(sketch16)
sketch16.AttachmentSupport = (doc.XY_Plane, [""])
sketch16.MapMode = "FlatFace"
sketch16.AttachmentOffset = App.Placement(V(0, 0, -25), App.Rotation())
add_polygon(sketch16, [(5, 26.5), (5, 0), (3, 0), (3, 26.5)])  # lines 0-3
sketch16.addConstraint([
    Sketcher.Constraint("Vertical", 0),
    Sketcher.Constraint("Horizontal", 1),
    Sketcher.Constraint("Vertical", 2),
    Sketcher.Constraint("Horizontal", 3),
    Sketcher.Constraint("PointOnObject", 0, 2, -1),
    Sketcher.Constraint("DistanceX", 1, 2, 1, 1, Q("2 mm")),
    Sketcher.Constraint("DistanceY", 0, 2, 0, 1, Q("26.5 mm")),
    Sketcher.Constraint("DistanceX", -1, 1, 0, 2, Q("5 mm")),
])
pad10 = doc.addObject("PartDesign::Pad", "Pad009")
body.addObject(pad10)
pad10.Profile = sketch16
pad10.Length = 10
pad10.Reversed = True

# Sketch on YZ plane
sketch17 = doc.addObject("Sketcher::SketchObject", "Sketch016")
body.addObject(sketch17)
sketch17.AttachmentSupport = (doc.YZ_Plane, [""])
sketch17.MapMode = "FlatFace"
sketch17.AttachmentOffset = App.Placement(V(0, 0, 5), App.Rotation())
add_polygon(sketch17, [(26.5, 35), (0, 35), (0, 30), (26.5, 30)])  # lines 0-3
add_polygon(sketch17, [(26.5, -30.332165), (0, -30.332165), (0, -35), (26.5, -35)])  # lines 4-7
sketch17.addConstraint([
    Sketcher.Constraint("Horizontal", 0),
    Sketcher.Constraint("Vertical", 1),
    Sketcher.Constraint("Horizontal", 2),
    Sketcher.Constraint("Vertical", 3),
    Sketcher.Constraint("Horizontal", 4),
    Sketcher.Constraint("Vertical", 5),
    Sketcher.Constraint("Horizontal", 6),
    Sketcher.Constraint("Vertical", 7),
    Sketcher.Constraint("Symmetric", 0, 2, 5, 2, -1, 1),
    Sketcher.Constraint("PointOnObject", 0, 2, -2),
    Sketcher.Constraint("Vertical", 3, 2, 6, 2),
    Sketcher.Constraint("DistanceY", 1, 2, 1, 1, Q("5 mm")),
    Sketcher.Constraint("DistanceX", 0, 2, 0, 1, Q("26.5 mm")),
    Sketcher.Constraint("DistanceY", -1, 1, 0, 2, Q("35 mm")),
    Sketcher.Constraint("DistanceY", 5, 2, 5, 1, Q("4.667835 mm")),
])
pad11 = doc.addObject("PartDesign::Pad", "Pad010")
body.addObject(pad11)
pad11.Profile = sketch17
pad11.Length = 17.5

# Sketch on XZ plane
sketch18 = doc.addObject("Sketcher::SketchObject", "Sketch017")
body.addObject(sketch18)
sketch18.AttachmentSupport = (doc.XZ_Plane, [""])
sketch18.MapMode = "FlatFace"
sketch18.AttachmentOffset = App.Placement(V(0, 0, -22), App.Rotation())
sketch18.addGeometry([
    Part.Circle(V(-40.5, 11.075, 0), V(0, 0, 1), 2.5),
    Part.Circle(V(8.5, 11.075, 0), V(0, 0, 1), 2.5),
    Part.Circle(V(-40.5, -11.075, 0), V(0, 0, 1), 2.5),
    Part.Circle(V(8.5, -11.075, 0), V(0, 0, 1), 2.5),
], False)
sketch18.addConstraint([
    Sketcher.Constraint("Equal", 0, 1),
    Sketcher.Constraint("Equal", 1, 2),
    Sketcher.Constraint("Equal", 2, 3),
    Sketcher.Constraint("Symmetric", 0, 3, 2, 3, -1),
    Sketcher.Constraint("Symmetric", 1, 3, 3, 3, -1),
    Sketcher.Constraint("Horizontal", 0, 3, 1, 3),
    Sketcher.Constraint("Diameter", 0, Q("5 mm")),
    Sketcher.Constraint("DistanceX", 0, 3, 1, 3, Q("49 mm")),
    Sketcher.Constraint("DistanceX", 0, 3, -1, 1, Q("40.5 mm")),
    Sketcher.Constraint("DistanceY", 2, 3, 0, 3, Q("22.15 mm")),
])
pad12 = doc.addObject("PartDesign::Pad", "Pad011")
body.addObject(pad12)
pad12.Profile = sketch18
pad12.Length = 7

# Sketch on XZ plane
sketch19 = doc.addObject("Sketcher::SketchObject", "Sketch018")
body.addObject(sketch19)
sketch19.AttachmentSupport = (doc.XZ_Plane, [""])
sketch19.MapMode = "FlatFace"
sketch19.AttachmentOffset = App.Placement(V(0, 0, -15), App.Rotation())
sketch19.addGeometry([
    Part.Circle(V(8.5, -11.075, 0), V(0, 0, 1), 1.5),
    Part.Circle(V(8.5, 11.075, 0), V(0, 0, 1), 1.5),
    Part.Circle(V(-40.5, -11.075, 0), V(0, 0, 1), 1.5),
    Part.Circle(V(-40.5, 11.075, 0), V(0, 0, 1), 1.5),
], False)
sketch19.addConstraint([
    Sketcher.Constraint("Equal", 0, 1),
    Sketcher.Constraint("Equal", 1, 2),
    Sketcher.Constraint("Equal", 2, 3),
    Sketcher.Constraint("Symmetric", 0, 3, 1, 3, -1),
    Sketcher.Constraint("Symmetric", 2, 3, 3, 3, -1),
    Sketcher.Constraint("Horizontal", 0, 3, 2, 3),
    Sketcher.Constraint("Diameter", 0, Q("3 mm")),
    Sketcher.Constraint("DistanceX", 2, 3, 0, 3, Q("49 mm")),
    Sketcher.Constraint("DistanceX", -1, 1, 0, 3, Q("8.5 mm")),
    Sketcher.Constraint("DistanceY", 0, 3, 1, 3, Q("22.15 mm")),
])
pocket7 = doc.addObject("PartDesign::Pocket", "Pocket006")
body.addObject(pocket7)
pocket7.Profile = sketch19
pocket7.Length = 5

doc.recompute()
